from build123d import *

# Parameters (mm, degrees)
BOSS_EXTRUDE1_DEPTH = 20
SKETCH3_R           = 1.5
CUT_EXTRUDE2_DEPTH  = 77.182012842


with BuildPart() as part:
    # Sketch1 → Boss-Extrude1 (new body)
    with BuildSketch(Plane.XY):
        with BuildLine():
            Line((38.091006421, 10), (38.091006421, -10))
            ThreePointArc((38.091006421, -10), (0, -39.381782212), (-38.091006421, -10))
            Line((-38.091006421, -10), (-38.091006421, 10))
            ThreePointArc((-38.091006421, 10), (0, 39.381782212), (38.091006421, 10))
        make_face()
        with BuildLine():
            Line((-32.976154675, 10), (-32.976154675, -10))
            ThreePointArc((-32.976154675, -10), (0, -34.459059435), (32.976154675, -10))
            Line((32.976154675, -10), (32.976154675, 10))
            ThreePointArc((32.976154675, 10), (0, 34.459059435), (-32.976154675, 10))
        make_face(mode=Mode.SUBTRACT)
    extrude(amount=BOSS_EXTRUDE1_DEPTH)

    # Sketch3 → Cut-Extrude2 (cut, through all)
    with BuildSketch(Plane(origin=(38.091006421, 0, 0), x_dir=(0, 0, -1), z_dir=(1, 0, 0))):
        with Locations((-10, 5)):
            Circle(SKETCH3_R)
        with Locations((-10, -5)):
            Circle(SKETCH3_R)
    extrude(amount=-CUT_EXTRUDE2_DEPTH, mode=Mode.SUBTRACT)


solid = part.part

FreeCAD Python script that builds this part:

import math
import FreeCAD as App
import Part
import Sketcher
from FreeCAD import Vector
Q = App.Units.Quantity

doc = App.newDocument("Part")
body = doc.addObject("PartDesign::Body", "Body")

sketch1 = body.newObject("Sketcher::SketchObject", "Sketch")
sketch1.AttachmentSupport = (doc.getObject("XY_Plane"), [""])
sketch1.MapMode = "FlatFace"
sketch1.addGeometry([
    Part.LineSegment(Vector(38, -10, 0), Vector(38, 10, 0)),
    Part.ArcOfCircle(Part.Circle(Vector(0, 0, 0), Vector(0, 0, 1), 39), math.radians(15), math.radians(165)),
    Part.LineSegment(Vector(-38, 10, 0), Vector(-38, -10, 0)),
    Part.ArcOfCircle(Part.Circle(Vector(0, 0, 0), Vector(0, 0, 1), 39), math.radians(-165), math.radians(-15)),
    Part.ArcOfCircle(Part.Circle(Vector(0, 0, 0), Vector(0, 0, 1), 34), math.radians(17), math.radians(163)),
    Part.LineSegment(Vector(33, 10, 0), Vector(33, -10, 0)),
    Part.ArcOfCircle(Part.Circle(Vector(0, 0, 0), Vector(0, 0, 1), 34), math.radians(-163), math.radians(-17)),
    Part.LineSegment(Vector(-33, -10, 0), Vector(-33, 10, 0)),
], False)
sketch1.addConstraint([
    Sketcher.Constraint("Coincident", 0, 2, 1, 1),
    Sketcher.Constraint("Coincident", 1, 2, 2, 1),
    Sketcher.Constraint("Coincident", 2, 2, 3, 1),
    Sketcher.Constraint("Coincident", 3, 2, 0, 1),
    Sketcher.Constraint("Coincident", 4, 1, 5, 1),
    Sketcher.Constraint("Coincident", 5, 2, 6, 2),
    Sketcher.Constraint("Coincident", 6, 1, 7, 1),
    Sketcher.Constraint("Coincident", 7, 2, 4, 2),
    Sketcher.Constraint("Vertical", 0),
    Sketcher.Constraint("Vertical", 2),
    Sketcher.Constraint("Vertical", 5),
    Sketcher.Constraint("Vertical", 7),
    Sketcher.Constraint("Coincident", 1, 3, -1, 1),
    Sketcher.Constraint("Coincident", 3, 3, -1, 1),
    Sketcher.Constraint("Coincident", 4, 3, -1, 1),
    Sketcher.Constraint("Coincident", 6, 3, -1, 1),
    Sketcher.Constraint("Equal", 1, 3),
    Sketcher.Constraint("Equal", 4, 6),
    Sketcher.Constraint("Horizontal", 0, 2, 1, 2),
    Sketcher.Constraint("Horizontal", 1, 2, 4, 1),
    Sketcher.Constraint("Horizontal", 5, 2, 6, 1),
    Sketcher.Constraint("DistanceY", 0, 1, 0, 2, Q("20 mm")),
    Sketcher.Constraint("Radius", 4, Q("34.459059 mm")),
    Sketcher.Constraint("Radius", 1, Q("39.381782 mm")),
])
pad1 = body.newObject("PartDesign::Pad", "Pad")
pad1.Profile = sketch1
pad1.Length = 20

sketch2 = body.newObject("Sketcher::SketchObject", "Sketch001")
sketch2.AttachmentSupport = (doc.getObject("YZ_Plane"), [""])
sketch2.MapMode = "FlatFace"
sketch2.AttachmentOffset = App.Placement(Vector(0, 0, 38.091006), App.Rotation())
sketch2.addGeometry([
    Part.Circle(Vector(5, 10, 0), Vector(0, 0, 1), 1.5),
    Part.Circle(Vector(-5, 10, 0), Vector(0, 0, 1), 1.5),
], False)
sketch2.addConstraint([
    Sketcher.Constraint("Equal", 0, 1),
    Sketcher.Constraint("Symmetric", 0, 3, 1, 3, -2),
    Sketcher.Constraint("Diameter", 0, Q("3 mm")),
    Sketcher.Constraint("DistanceX", -1, 1, 0, 3, Q("5 mm")),
    Sketcher.Constraint("DistanceY", -1, 1, 0, 3, Q("10 mm")),
])
pocket1 = body.newObject("PartDesign::Pocket", "Pocket")
pocket1.Profile = sketch2
pocket1.Type = "ThroughAll"

doc.recompute()
